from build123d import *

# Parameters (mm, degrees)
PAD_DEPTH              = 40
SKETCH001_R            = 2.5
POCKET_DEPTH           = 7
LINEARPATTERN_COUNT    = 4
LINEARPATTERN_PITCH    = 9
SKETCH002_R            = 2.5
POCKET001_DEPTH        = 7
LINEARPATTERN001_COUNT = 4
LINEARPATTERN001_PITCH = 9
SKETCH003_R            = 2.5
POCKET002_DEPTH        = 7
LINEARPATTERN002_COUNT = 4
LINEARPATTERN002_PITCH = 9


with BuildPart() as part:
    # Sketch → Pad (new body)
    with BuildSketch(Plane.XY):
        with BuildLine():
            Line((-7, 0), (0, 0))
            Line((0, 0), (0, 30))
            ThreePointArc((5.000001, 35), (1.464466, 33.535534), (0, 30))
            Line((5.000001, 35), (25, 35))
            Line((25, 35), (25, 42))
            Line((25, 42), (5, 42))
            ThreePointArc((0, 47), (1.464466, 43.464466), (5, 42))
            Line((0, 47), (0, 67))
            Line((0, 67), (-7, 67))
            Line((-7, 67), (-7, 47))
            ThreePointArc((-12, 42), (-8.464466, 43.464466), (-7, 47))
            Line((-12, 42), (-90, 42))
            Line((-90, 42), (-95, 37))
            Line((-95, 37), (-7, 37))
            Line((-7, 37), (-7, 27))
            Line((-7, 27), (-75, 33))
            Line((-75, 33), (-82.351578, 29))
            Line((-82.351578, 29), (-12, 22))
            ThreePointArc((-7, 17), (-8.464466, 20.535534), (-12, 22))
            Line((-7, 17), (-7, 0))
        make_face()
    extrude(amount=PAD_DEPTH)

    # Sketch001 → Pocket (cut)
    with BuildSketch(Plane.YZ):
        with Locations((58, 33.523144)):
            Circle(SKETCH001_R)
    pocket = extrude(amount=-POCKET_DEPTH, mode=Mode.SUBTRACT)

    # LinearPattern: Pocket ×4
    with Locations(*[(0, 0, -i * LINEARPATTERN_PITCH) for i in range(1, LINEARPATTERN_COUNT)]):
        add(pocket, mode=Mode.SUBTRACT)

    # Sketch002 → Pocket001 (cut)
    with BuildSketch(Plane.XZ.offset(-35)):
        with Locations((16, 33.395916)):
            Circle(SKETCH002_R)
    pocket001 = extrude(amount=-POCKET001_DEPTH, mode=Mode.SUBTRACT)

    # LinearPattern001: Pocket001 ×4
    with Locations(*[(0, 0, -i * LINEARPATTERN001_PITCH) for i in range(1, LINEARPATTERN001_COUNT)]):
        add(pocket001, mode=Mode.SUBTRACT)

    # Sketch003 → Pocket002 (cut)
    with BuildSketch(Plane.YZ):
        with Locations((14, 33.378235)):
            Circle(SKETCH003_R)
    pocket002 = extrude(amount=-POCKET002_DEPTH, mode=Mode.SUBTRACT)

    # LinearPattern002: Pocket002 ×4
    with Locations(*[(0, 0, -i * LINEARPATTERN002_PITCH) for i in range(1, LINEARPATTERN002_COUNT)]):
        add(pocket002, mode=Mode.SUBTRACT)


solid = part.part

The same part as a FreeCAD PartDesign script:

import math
import FreeCAD as App
import Part
import Sketcher

V = App.Vector
Q = App.Units.Quantity

doc = App.newDocument("Part")
body = doc.addObject("PartDesign::Body", "Body")

# Sketch on XY plane
sketch1 = body.newObject("Sketcher::SketchObject", "Sketch")
sketch1.AttachmentSupport = (doc.getObject("XY_Plane"), [""])
sketch1.MapMode = "FlatFace"
sketch1.addGeometry(Part.LineSegment(V(-7, 0, 0), V(0, 0, 0)), False)
sketch1.addGeometry(Part.LineSegment(V(0, 0, 0), V(0, 30, 0)), False)
sketch1.addGeometry(Part.ArcOfCircle(Part.Circle(V(5, 30, 0), V(0, 0, 1), 5), math.radians(90), math.radians(180)), False)
sketch1.addGeometry(Part.LineSegment(V(5, 35, 0), V(25, 35, 0)), False)
sketch1.addGeometry(Part.LineSegment(V(25, 35, 0), V(25, 42, 0)), False)
sketch1.addGeometry(Part.LineSegment(V(25, 42, 0), V(5, 42, 0)), False)
sketch1.addGeometry(Part.ArcOfCircle(Part.Circle(V(5, 47, 0), V(0, 0, 1), 5), math.radians(180), math.radians(270)), False)
sketch1.addGeometry(Part.LineSegment(V(0, 47, 0), V(0, 67, 0)), False)
sketch1.addGeometry(Part.LineSegment(V(0, 67, 0), V(-7, 67, 0)), False)
sketch1.addGeometry(Part.LineSegment(V(-7, 67, 0), V(-7, 47, 0)), False)
sketch1.addGeometry(Part.ArcOfCircle(Part.Circle(V(-12, 47, 0), V(0, 0, 1), 5), math.radians(-90), math.radians(0)), False)
sketch1.addGeometry(Part.LineSegment(V(-12, 42, 0), V(-90, 42, 0)), False)
sketch1.addGeometry(Part.LineSegment(V(-90, 42, 0), V(-95, 37, 0)), False)
sketch1.addGeometry(Part.LineSegment(V(-95, 37, 0), V(-7, 37, 0)), False)
sketch1.addGeometry(Part.LineSegment(V(-7, 37, 0), V(-7, 27, 0)), False)
sketch1.addGeometry(Part.LineSegment(V(-7, 27, 0), V(-75, 33, 0)), False)
sketch1.addGeometry(Part.LineSegment(V(-75, 33, 0), V(-82.4, 29, 0)), False)
sketch1.addGeometry(Part.LineSegment(V(-82.4, 29, 0), V(-12, 22, 0)), False)
sketch1.addGeometry(Part.ArcOfCircle(Part.Circle(V(-12, 17, 0), V(0, 0, 1), 5), math.radians(0), math.radians(90)), False)
sketch1.addGeometry(Part.LineSegment(V(-7, 17, 0), V(-7, 0, 0)), False)
sketch1.addConstraint(Sketcher.Constraint("Coincident", 0, 2, 1, 1))
sketch1.addConstraint(Sketcher.Constraint("Tangent", 1, 2, 2, 2))
sketch1.addConstraint(Sketcher.Constraint("Tangent", 2, 1, 3, 1))
sketch1.addConstraint(Sketcher.Constraint("Coincident", 3, 2, 4, 1))
sketch1.addConstraint(Sketcher.Constraint("Coincident", 4, 2, 5, 1))
sketch1.addConstraint(Sketcher.Constraint("Tangent", 5, 2, 6, 2))
sketch1.addConstraint(Sketcher.Constraint("Tangent", 6, 1, 7, 1))
sketch1.addConstraint(Sketcher.Constraint("Coincident", 7, 2, 8, 1))
sketch1.addConstraint(Sketcher.Constraint("Coincident", 8, 2, 9, 1))
sketch1.addConstraint(Sketcher.Constraint("Tangent", 9, 2, 10, 2))
sketch1.addConstraint(Sketcher.Constraint("Tangent", 10, 1, 11, 1))
sketch1.addConstraint(Sketcher.Constraint("Coincident", 11, 2, 12, 1))
sketch1.addConstraint(Sketcher.Constraint("Coincident", 12, 2, 13, 1))
sketch1.addConstraint(Sketcher.Constraint("Coincident", 13, 2, 14, 1))
sketch1.addConstraint(Sketcher.Constraint("Coincident", 14, 2, 15, 1))
sketch1.addConstraint(Sketcher.Constraint("Coincident", 15, 2, 16, 1))
sketch1.addConstraint(Sketcher.Constraint("Coincident", 16, 2, 17, 1))
sketch1.addConstraint(Sketcher.Constraint("Coincident", 17, 2, 18, 2))
sketch1.addConstraint(Sketcher.Constraint("Tangent", 18, 1, 19, 1))
sketch1.addConstraint(Sketcher.Constraint("Coincident", 19, 2, 0, 1))
sketch1.addConstraint(Sketcher.Constraint("Horizontal", 0))
sketch1.addConstraint(Sketcher.Constraint("Vertical", 1))
sketch1.addConstraint(Sketcher.Constraint("Horizontal", 3))
sketch1.addConstraint(Sketcher.Constraint("Vertical", 4))
sketch1.addConstraint(Sketcher.Constraint("Horizontal", 5))
sketch1.addConstraint(Sketcher.Constraint("Vertical", 7))
sketch1.addConstraint(Sketcher.Constraint("Horizontal", 8))
sketch1.addConstraint(Sketcher.Constraint("Vertical", 9))
sketch1.addConstraint(Sketcher.Constraint("Horizontal", 11))
sketch1.addConstraint(Sketcher.Constraint("Horizontal", 13))
sketch1.addConstraint(Sketcher.Constraint("Vertical", 14))
sketch1.addConstraint(Sketcher.Constraint("Vertical", 19))
sketch1.addConstraint(Sketcher.Constraint("Coincident", 0, 2, -1, 1))
sketch1.addConstraint(Sketcher.Constraint("Equal", 2, 6))
sketch1.addConstraint(Sketcher.Constraint("Equal", 6, 10))
sketch1.addConstraint(Sketcher.Constraint("Equal", 10, 18))
sketch1.addConstraint(Sketcher.Constraint("PointOnObject", 6, 1, -2))
sketch1.addConstraint(Sketcher.Constraint("Horizontal", 6, 3, 10, 3))
sketch1.addConstraint(Sketcher.Constraint("Vertical", 10, 3, 18, 3))
sketch1.addConstraint(Sketcher.Constraint("Vertical", 9, 2, 13, 2))
sketch1.addConstraint(Sketcher.Constraint("Vertical", 10, 1, 17, 2))
sketch1.addConstraint(Sketcher.Constraint("Equal", 8, 4))
sketch1.addConstraint(Sketcher.Constraint("Equal", 5, 7))
sketch1.addConstraint(Sketcher.Constraint("Radius", 2, 5.0))
sketch1.addConstraint(Sketcher.Constraint("DistanceX", 0, 1, 0, 2, 7.0))
sketch1.addConstraint(Sketcher.Constraint("DistanceX", 3, 1, 3, 2, 19.999999))
sketch1.addConstraint(Sketcher.Constraint("DistanceX", 11, 2, 11, 1, 78.0))
sketch1.addConstraint(Sketcher.Constraint("DistanceX", 13, 1, 13, 2, 88.0))
sketch1.addConstraint(Sketcher.Constraint("DistanceY", 1, 1, 1, 2, 30.0))
sketch1.addConstraint(Sketcher.Constraint("DistanceY", 14, 2, 14, 1, 10.0))
sketch1.addConstraint(Sketcher.Constraint("DistanceY", 19, 2, 19, 1, 17.0))
sketch1.addConstraint(Sketcher.Constraint("Angle", 12, Q("-135 deg")))
sketch1.addConstraint(Sketcher.Constraint("DistanceX", 15, 2, -1, 1, 75.0))
sketch1.addConstraint(Sketcher.Constraint("DistanceY", -1, 1, 15, 2, 33.0))
sketch1.addConstraint(Sketcher.Constraint("DistanceY", -1, 1, 16, 2, 29.0))
sketch1.addConstraint(Sketcher.Constraint("Distance", 16, 8.369331))
pad1 = body.newObject("PartDesign::Pad", "Pad")
pad1.Profile = sketch1
pad1.Length = 40

# Sketch on YZ plane
sketch2 = body.newObject("Sketcher::SketchObject", "Sketch001")
sketch2.AttachmentSupport = (doc.getObject("YZ_Plane"), [""])
sketch2.MapMode = "FlatFace"
sketch2.addGeometry(Part.Circle(V(58, 33.5, 0), V(0, 0, 1), 2.5), False)
sketch2.addConstraint(Sketcher.Constraint("Diameter", 0, 5.0))
sketch2.addConstraint(Sketcher.Constraint("DistanceX", -1, 1, 0, 3, 58.0))
sketch2.addConstraint(Sketcher.Constraint("DistanceY", -1, 1, 0, 3, 33.523144))
pocket1 = body.newObject("PartDesign::Pocket", "Pocket")
pocket1.Profile = sketch2
pocket1.Length = 7
doc.recompute()

linearpattern = body.newObject("PartDesign::LinearPattern", "LinearPattern")
linearpattern.Originals = [pocket1]
linearpattern.Direction = (doc.getObject("Z_Axis"), [""])
linearpattern.Mode = "offset"
linearpattern.Offset = 9
linearpattern.Occurrences = 4
linearpattern.Reversed = True
body.Tip = linearpattern

# Sketch on XZ plane
sketch3 = body.newObject("Sketcher::SketchObject", "Sketch002")
sketch3.AttachmentSupport = (doc.getObject("XZ_Plane"), [""])
sketch3.MapMode = "FlatFace"
sketch3.AttachmentOffset = App.Placement(V(0, 0, -35), App.Rotation())
sketch3.addGeometry(Part.Circle(V(16, 33.4, 0), V(0, 0, 1), 2.5), False)
sketch3.addConstraint(Sketcher.Constraint("Diameter", 0, 5.0))
sketch3.addConstraint(Sketcher.Constraint("DistanceX", -1, 1, 0, 3, 16.0))
sketch3.addConstraint(Sketcher.Constraint("DistanceY", -1, 1, 0, 3, 33.395916))
pocket2 = body.newObject("PartDesign::Pocket", "Pocket001")
pocket2.Profile = sketch3
pocket2.Length = 7
doc.recompute()

linearpattern2 = body.newObject("PartDesign::LinearPattern", "LinearPattern001")
linearpattern2.Originals = [pocket2]
linearpattern2.Direction = (doc.getObject("Z_Axis"), [""])
linearpattern2.Mode = "offset"
linearpattern2.Offset = 9
linearpattern2.Occurrences = 4
linearpattern2.Reversed = True
body.Tip = linearpattern2

# Sketch on YZ plane
sketch4 = body.newObject("Sketcher::SketchObject", "Sketch003")
sketch4.AttachmentSupport = (doc.getObject("YZ_Plane"), [""])
sketch4.MapMode = "FlatFace"
sketch4.addGeometry(Part.Circle(V(14, 33.4, 0), V(0, 0, 1), 2.5), False)
sketch4.addConstraint(Sketcher.Constraint("Diameter", 0, 5.0))
sketch4.addConstraint(Sketcher.Constraint("DistanceX", -1, 1, 0, 3, 14.0))
sketch4.addConstraint(Sketcher.Constraint("DistanceY", -1, 1, 0, 3, 33.378235))
pocket3 = body.newObject("PartDesign::Pocket", "Pocket002")
pocket3.Profile = sketch4
pocket3.Length = 7
doc.recompute()

linearpattern3 = body.newObject("PartDesign::LinearPattern", "LinearPattern002")
linearpattern3.Originals = [pocket3]
linearpattern3.Direction = (doc.getObject("Z_Axis"), [""])
linearpattern3.Mode = "offset"
linearpattern3.Offset = 9
linearpattern3.Occurrences = 4
linearpattern3.Reversed = True
body.Tip = linearpattern3

doc.recompute()
